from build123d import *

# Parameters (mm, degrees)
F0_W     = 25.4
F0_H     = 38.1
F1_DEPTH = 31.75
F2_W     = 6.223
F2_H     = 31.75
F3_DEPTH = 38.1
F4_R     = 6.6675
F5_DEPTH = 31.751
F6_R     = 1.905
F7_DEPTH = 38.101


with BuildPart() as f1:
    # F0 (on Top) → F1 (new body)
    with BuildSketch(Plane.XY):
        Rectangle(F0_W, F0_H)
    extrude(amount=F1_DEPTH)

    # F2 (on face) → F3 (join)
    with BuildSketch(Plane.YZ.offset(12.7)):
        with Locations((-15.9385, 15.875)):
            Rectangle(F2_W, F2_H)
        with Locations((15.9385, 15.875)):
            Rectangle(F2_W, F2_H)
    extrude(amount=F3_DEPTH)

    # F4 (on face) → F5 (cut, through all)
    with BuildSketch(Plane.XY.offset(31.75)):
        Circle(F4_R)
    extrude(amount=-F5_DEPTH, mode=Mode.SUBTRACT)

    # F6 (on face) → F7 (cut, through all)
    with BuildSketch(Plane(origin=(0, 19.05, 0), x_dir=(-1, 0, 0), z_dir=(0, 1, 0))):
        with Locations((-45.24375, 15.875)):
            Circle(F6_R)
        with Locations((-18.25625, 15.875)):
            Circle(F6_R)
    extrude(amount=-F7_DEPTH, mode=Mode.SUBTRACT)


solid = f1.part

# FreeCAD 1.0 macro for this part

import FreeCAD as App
import Part
import Sketcher
from FreeCAD import Vector
Q = App.Units.Quantity


def add_polygon(sketch, points):
    """Adds a closed chain of lines whose ends are joined by coincident constraints."""
    first, n = sketch.GeometryCount, len(points)
    for a, b in zip(points, points[1:] + points[:1]):
        sketch.addGeometry(Part.LineSegment(App.Vector(*a, 0), App.Vector(*b, 0)), False)
    for i in range(n):
        sketch.addConstraint(Sketcher.Constraint("Coincident", first + i, 2, first + (i + 1) % n, 1))

doc = App.newDocument("Part")
body = doc.addObject("PartDesign::Body", "Body")

sketch1 = body.newObject("Sketcher::SketchObject", "Sketch")
sketch1.AttachmentSupport = (doc.getObject("XY_Plane"), [""])
sketch1.MapMode = "FlatFace"
add_polygon(sketch1, [(-13, 19), (-13, -19), (13, -19), (13, 19)])
sketch1.addConstraint(Sketcher.Constraint("Vertical", 0))
sketch1.addConstraint(Sketcher.Constraint("Horizontal", 1))
sketch1.addConstraint(Sketcher.Constraint("Vertical", 2))
sketch1.addConstraint(Sketcher.Constraint("Horizontal", 3))
sketch1.addConstraint(Sketcher.Constraint("Symmetric", 0, 2, 2, 2, -1, 1))
sketch1.addConstraint(Sketcher.Constraint("DistanceX", 1, 1, 1, 2, Q("1 in")))
sketch1.addConstraint(Sketcher.Constraint("DistanceY", 0, 2, 0, 1, Q("1.5 in")))
pad1 = body.newObject("PartDesign::Pad", "Pad")
pad1.Profile = sketch1
pad1.Length = Q("1.25 in")

sketch2 = body.newObject("Sketcher::SketchObject", "Sketch001")
sketch2.AttachmentSupport = (doc.getObject("YZ_Plane"), [""])
sketch2.MapMode = "FlatFace"
sketch2.AttachmentOffset = App.Placement(Vector(0, 0, 0.5 * 25.4), App.Rotation())
add_polygon(sketch2, [(-19, 32), (-19, 0), (-13, 0), (-13, 32)])
add_polygon(sketch2, [(13, 32), (13, 0), (19, 0), (19, 32)])
sketch2.addConstraint(Sketcher.Constraint("Vertical", 0))
sketch2.addConstraint(Sketcher.Constraint("Horizontal", 1))
sketch2.addConstraint(Sketcher.Constraint("Vertical", 2))
sketch2.addConstraint(Sketcher.Constraint("Horizontal", 3))
sketch2.addConstraint(Sketcher.Constraint("Vertical", 4))
sketch2.addConstraint(Sketcher.Constraint("Horizontal", 5))
sketch2.addConstraint(Sketcher.Constraint("Vertical", 6))
sketch2.addConstraint(Sketcher.Constraint("Horizontal", 7))
sketch2.addConstraint(Sketcher.Constraint("Symmetric", 1, 2, 4, 2, -1, 1))
sketch2.addConstraint(Sketcher.Constraint("Symmetric", 0, 2, 5, 2, -2))
sketch2.addConstraint(Sketcher.Constraint("Horizontal", 3, 2, 6, 2))
sketch2.addConstraint(Sketcher.Constraint("DistanceY", 0, 2, 0, 1, Q("1.25 in")))
sketch2.addConstraint(Sketcher.Constraint("DistanceX", 0, 2, 5, 2, Q("1.5 in")))
sketch2.addConstraint(Sketcher.Constraint("DistanceX", 1, 1, 1, 2, Q("0.245 in")))
pad2 = body.newObject("PartDesign::Pad", "Pad001")
pad2.Profile = sketch2
pad2.Length = Q("1.5 in")

sketch3 = body.newObject("Sketcher::SketchObject", "Sketch002")
sketch3.AttachmentSupport = (doc.getObject("XY_Plane"), [""])
sketch3.MapMode = "FlatFace"
sketch3.AttachmentOffset = App.Placement(Vector(0, 0, 1.25 * 25.4), App.Rotation())
sketch3.addGeometry(Part.Circle(Vector(0, 0, 0), Vector(0, 0, 1), 7), False)
sketch3.addConstraint(Sketcher.Constraint("Coincident", 0, 3, -1, 1))
sketch3.addConstraint(Sketcher.Constraint("Diameter", 0, Q("0.525 in")))
pocket1 = body.newObject("PartDesign::Pocket", "Pocket")
pocket1.Profile = sketch3
pocket1.Type = "ThroughAll"

sketch4 = body.newObject("Sketcher::SketchObject", "Sketch003")
sketch4.AttachmentSupport = (doc.getObject("XZ_Plane"), [""])
sketch4.MapMode = "FlatFace"
sketch4.AttachmentOffset = App.Placement(Vector(0, 0, -0.75 * 25.4), App.Rotation())
sketch4.addGeometry(Part.Circle(Vector(45.2, 15.9, 0), Vector(0, 0, 1), 1.9), False)
sketch4.addGeometry(Part.Circle(Vector(18.3, 15.9, 0), Vector(0, 0, 1), 1.9), False)
sketch4.addConstraint(Sketcher.Constraint("Equal", 0, 1))
sketch4.addConstraint(Sketcher.Constraint("Horizontal", 0, 3, 1, 3))
sketch4.addConstraint(Sketcher.Constraint("Diameter", 0, Q("0.15 in")))
sketch4.addConstraint(Sketcher.Constraint("DistanceX", -1, 1, 0, 3, Q("1.78125 in")))
sketch4.addConstraint(Sketcher.Constraint("DistanceY", -1, 1, 0, 3, Q("0.625 in")))
sketch4.addConstraint(Sketcher.Constraint("DistanceX", -1, 1, 1, 3, Q("0.71875 in")))
pocket2 = body.newObject("PartDesign::Pocket", "Pocket001")
pocket2.Profile = sketch4
pocket2.Type = "ThroughAll"
pocket2.Reversed = True

doc.recompute()
